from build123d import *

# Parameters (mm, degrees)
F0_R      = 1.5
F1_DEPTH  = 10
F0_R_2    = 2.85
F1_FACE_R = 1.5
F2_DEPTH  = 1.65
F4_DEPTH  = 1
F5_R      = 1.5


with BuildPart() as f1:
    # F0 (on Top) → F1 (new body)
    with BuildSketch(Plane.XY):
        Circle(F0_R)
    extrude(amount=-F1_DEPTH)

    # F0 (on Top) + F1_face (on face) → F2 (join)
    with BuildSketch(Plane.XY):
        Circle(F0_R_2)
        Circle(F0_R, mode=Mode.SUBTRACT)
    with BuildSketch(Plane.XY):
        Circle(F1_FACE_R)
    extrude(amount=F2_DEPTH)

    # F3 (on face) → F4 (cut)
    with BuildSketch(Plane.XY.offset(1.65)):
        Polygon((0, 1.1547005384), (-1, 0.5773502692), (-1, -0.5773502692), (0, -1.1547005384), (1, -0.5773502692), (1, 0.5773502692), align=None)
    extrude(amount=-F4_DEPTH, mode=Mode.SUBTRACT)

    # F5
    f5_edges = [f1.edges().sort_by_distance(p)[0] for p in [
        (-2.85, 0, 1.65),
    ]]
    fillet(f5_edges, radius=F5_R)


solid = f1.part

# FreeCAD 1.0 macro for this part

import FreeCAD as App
import Part
import Sketcher
Q = App.Units.Quantity


def edges_at(feature, points):
    """Names of the edges that pass closest to the given points."""
    edges = feature.Shape.Edges
    near = lambda p: min(range(len(edges)), key=lambda i: edges[i].distToShape(Part.Vertex(*p))[0])
    return sorted({f"Edge{near(p) + 1}" for p in points})

doc = App.newDocument("Part")
params = doc.addObject("Spreadsheet::Sheet", "Params")
for row, (alias, value) in enumerate([
    ("sketch1_diameter", "3 mm"),
    ("pad1_length", "10 mm"),
    ("sketch2_diameter", "5.7 mm"),
    ("pad2_length", "1.65 mm"),
    ("pocket1_length", "1 mm"),
    ("fillet_radius", "1.5 mm"),
], start=1):
    params.set(f"A{row}", alias)
    params.set(f"B{row}", "=" + value)
    params.setAlias(f"B{row}", alias)

body = doc.addObject("PartDesign::Body", "Body")

# Sketch on XY plane
sketch1 = doc.addObject("Sketcher::SketchObject", "Sketch")
body.addObject(sketch1)
sketch1.AttachmentSupport = (doc.XY_Plane, [""])
sketch1.MapMode = "FlatFace"
sketch1.addGeometry(Part.Circle(App.Vector(0, 0, 0), App.Vector(0, 0, 1), 1.5), False)
sketch1.addConstraint(Sketcher.Constraint("Coincident", 0, 3, -1, 1))
sketch1.addConstraint(Sketcher.Constraint("Diameter", 0, Q("3 mm")))
sketch1.setExpression("Constraints[1]", "Params.sketch1_diameter")
pad1 = doc.addObject("PartDesign::Pad", "Pad")
body.addObject(pad1)
pad1.Profile = sketch1
pad1.setExpression("Length", "Params.pad1_length")
pad1.Reversed = True

# Sketch on XY plane
sketch2 = doc.addObject("Sketcher::SketchObject", "Sketch001")
body.addObject(sketch2)
sketch2.AttachmentSupport = (doc.XY_Plane, [""])
sketch2.MapMode = "FlatFace"
sketch2.addGeometry(Part.Circle(App.Vector(0, 0, 0), App.Vector(0, 0, 1), 2.9), False)
sketch2.addConstraint(Sketcher.Constraint("Coincident", 0, 3, -1, 1))
sketch2.addConstraint(Sketcher.Constraint("Diameter", 0, Q("5.7 mm")))
sketch2.setExpression("Constraints[1]", "Params.sketch2_diameter")
pad2 = doc.addObject("PartDesign::Pad", "Pad001")
body.addObject(pad2)
pad2.Profile = sketch2
pad2.setExpression("Length", "Params.pad2_length")

# Sketch on XY plane
sketch3 = doc.addObject("Sketcher::SketchObject", "Sketch002")
body.addObject(sketch3)
sketch3.AttachmentSupport = (doc.XY_Plane, [""])
sketch3.MapMode = "FlatFace"
sketch3.AttachmentOffset = App.Placement(App.Vector(0, 0, 1.65), App.Rotation())
sketch3.addGeometry(Part.LineSegment(App.Vector(0, 1.2, 0), App.Vector(-1, 0.6, 0)), False)
sketch3.addGeometry(Part.LineSegment(App.Vector(-1, 0.6, 0), App.Vector(-1, -0.6, 0)), False)
sketch3.addGeometry(Part.LineSegment(App.Vector(-1, -0.6, 0), App.Vector(0, -1.2, 0)), False)
sketch3.addGeometry(Part.LineSegment(App.Vector(0, -1.2, 0), App.Vector(1, -0.6, 0)), False)
sketch3.addGeometry(Part.LineSegment(App.Vector(1, -0.6, 0), App.Vector(1, 0.6, 0)), False)
sketch3.addGeometry(Part.LineSegment(App.Vector(1, 0.6, 0), App.Vector(0, 1.2, 0)), False)
sketch3.addConstraint(Sketcher.Constraint("Coincident", 0, 2, 1, 1))
sketch3.addConstraint(Sketcher.Constraint("Coincident", 1, 2, 2, 1))
sketch3.addConstraint(Sketcher.Constraint("Coincident", 2, 2, 3, 1))
sketch3.addConstraint(Sketcher.Constraint("Coincident", 3, 2, 4, 1))
sketch3.addConstraint(Sketcher.Constraint("Coincident", 4, 2, 5, 1))
sketch3.addConstraint(Sketcher.Constraint("Coincident", 5, 2, 0, 1))
sketch3.addConstraint(Sketcher.Constraint("Vertical", 1))
sketch3.addConstraint(Sketcher.Constraint("Vertical", 4))
sketch3.addConstraint(Sketcher.Constraint("Symmetric", 0, 2, 3, 2, -1, 1))
sketch3.addConstraint(Sketcher.Constraint("Symmetric", 2, 2, 5, 2, -1, 1))
sketch3.addConstraint(Sketcher.Constraint("PointOnObject", 2, 2, -2))
sketch3.addConstraint(Sketcher.Constraint("Parallel", 2, 5))
sketch3.addConstraint(Sketcher.Constraint("Horizontal", 1, 2, 3, 2))
sketch3.addConstraint(Sketcher.Constraint("Angle", 0, Q("-150 deg")))
sketch3.addConstraint(Sketcher.Constraint("DistanceX", 0, 2, -1, 1, Q("1 mm")))
sketch3.addConstraint(Sketcher.Constraint("DistanceY", 1, 2, 1, 1, Q("1.154701 mm")))
pocket1 = doc.addObject("PartDesign::Pocket", "Pocket")
body.addObject(pocket1)
pocket1.Profile = sketch3
pocket1.setExpression("Length", "Params.pocket1_length")
doc.recompute()

fillet = doc.addObject("PartDesign::Fillet", "Fillet")
body.addObject(fillet)
fillet.Base = (pocket1, edges_at(pocket1, [(-2.85, 0, 1.65)]))
fillet.setExpression("Radius", "Params.fillet_radius")

doc.recompute()
